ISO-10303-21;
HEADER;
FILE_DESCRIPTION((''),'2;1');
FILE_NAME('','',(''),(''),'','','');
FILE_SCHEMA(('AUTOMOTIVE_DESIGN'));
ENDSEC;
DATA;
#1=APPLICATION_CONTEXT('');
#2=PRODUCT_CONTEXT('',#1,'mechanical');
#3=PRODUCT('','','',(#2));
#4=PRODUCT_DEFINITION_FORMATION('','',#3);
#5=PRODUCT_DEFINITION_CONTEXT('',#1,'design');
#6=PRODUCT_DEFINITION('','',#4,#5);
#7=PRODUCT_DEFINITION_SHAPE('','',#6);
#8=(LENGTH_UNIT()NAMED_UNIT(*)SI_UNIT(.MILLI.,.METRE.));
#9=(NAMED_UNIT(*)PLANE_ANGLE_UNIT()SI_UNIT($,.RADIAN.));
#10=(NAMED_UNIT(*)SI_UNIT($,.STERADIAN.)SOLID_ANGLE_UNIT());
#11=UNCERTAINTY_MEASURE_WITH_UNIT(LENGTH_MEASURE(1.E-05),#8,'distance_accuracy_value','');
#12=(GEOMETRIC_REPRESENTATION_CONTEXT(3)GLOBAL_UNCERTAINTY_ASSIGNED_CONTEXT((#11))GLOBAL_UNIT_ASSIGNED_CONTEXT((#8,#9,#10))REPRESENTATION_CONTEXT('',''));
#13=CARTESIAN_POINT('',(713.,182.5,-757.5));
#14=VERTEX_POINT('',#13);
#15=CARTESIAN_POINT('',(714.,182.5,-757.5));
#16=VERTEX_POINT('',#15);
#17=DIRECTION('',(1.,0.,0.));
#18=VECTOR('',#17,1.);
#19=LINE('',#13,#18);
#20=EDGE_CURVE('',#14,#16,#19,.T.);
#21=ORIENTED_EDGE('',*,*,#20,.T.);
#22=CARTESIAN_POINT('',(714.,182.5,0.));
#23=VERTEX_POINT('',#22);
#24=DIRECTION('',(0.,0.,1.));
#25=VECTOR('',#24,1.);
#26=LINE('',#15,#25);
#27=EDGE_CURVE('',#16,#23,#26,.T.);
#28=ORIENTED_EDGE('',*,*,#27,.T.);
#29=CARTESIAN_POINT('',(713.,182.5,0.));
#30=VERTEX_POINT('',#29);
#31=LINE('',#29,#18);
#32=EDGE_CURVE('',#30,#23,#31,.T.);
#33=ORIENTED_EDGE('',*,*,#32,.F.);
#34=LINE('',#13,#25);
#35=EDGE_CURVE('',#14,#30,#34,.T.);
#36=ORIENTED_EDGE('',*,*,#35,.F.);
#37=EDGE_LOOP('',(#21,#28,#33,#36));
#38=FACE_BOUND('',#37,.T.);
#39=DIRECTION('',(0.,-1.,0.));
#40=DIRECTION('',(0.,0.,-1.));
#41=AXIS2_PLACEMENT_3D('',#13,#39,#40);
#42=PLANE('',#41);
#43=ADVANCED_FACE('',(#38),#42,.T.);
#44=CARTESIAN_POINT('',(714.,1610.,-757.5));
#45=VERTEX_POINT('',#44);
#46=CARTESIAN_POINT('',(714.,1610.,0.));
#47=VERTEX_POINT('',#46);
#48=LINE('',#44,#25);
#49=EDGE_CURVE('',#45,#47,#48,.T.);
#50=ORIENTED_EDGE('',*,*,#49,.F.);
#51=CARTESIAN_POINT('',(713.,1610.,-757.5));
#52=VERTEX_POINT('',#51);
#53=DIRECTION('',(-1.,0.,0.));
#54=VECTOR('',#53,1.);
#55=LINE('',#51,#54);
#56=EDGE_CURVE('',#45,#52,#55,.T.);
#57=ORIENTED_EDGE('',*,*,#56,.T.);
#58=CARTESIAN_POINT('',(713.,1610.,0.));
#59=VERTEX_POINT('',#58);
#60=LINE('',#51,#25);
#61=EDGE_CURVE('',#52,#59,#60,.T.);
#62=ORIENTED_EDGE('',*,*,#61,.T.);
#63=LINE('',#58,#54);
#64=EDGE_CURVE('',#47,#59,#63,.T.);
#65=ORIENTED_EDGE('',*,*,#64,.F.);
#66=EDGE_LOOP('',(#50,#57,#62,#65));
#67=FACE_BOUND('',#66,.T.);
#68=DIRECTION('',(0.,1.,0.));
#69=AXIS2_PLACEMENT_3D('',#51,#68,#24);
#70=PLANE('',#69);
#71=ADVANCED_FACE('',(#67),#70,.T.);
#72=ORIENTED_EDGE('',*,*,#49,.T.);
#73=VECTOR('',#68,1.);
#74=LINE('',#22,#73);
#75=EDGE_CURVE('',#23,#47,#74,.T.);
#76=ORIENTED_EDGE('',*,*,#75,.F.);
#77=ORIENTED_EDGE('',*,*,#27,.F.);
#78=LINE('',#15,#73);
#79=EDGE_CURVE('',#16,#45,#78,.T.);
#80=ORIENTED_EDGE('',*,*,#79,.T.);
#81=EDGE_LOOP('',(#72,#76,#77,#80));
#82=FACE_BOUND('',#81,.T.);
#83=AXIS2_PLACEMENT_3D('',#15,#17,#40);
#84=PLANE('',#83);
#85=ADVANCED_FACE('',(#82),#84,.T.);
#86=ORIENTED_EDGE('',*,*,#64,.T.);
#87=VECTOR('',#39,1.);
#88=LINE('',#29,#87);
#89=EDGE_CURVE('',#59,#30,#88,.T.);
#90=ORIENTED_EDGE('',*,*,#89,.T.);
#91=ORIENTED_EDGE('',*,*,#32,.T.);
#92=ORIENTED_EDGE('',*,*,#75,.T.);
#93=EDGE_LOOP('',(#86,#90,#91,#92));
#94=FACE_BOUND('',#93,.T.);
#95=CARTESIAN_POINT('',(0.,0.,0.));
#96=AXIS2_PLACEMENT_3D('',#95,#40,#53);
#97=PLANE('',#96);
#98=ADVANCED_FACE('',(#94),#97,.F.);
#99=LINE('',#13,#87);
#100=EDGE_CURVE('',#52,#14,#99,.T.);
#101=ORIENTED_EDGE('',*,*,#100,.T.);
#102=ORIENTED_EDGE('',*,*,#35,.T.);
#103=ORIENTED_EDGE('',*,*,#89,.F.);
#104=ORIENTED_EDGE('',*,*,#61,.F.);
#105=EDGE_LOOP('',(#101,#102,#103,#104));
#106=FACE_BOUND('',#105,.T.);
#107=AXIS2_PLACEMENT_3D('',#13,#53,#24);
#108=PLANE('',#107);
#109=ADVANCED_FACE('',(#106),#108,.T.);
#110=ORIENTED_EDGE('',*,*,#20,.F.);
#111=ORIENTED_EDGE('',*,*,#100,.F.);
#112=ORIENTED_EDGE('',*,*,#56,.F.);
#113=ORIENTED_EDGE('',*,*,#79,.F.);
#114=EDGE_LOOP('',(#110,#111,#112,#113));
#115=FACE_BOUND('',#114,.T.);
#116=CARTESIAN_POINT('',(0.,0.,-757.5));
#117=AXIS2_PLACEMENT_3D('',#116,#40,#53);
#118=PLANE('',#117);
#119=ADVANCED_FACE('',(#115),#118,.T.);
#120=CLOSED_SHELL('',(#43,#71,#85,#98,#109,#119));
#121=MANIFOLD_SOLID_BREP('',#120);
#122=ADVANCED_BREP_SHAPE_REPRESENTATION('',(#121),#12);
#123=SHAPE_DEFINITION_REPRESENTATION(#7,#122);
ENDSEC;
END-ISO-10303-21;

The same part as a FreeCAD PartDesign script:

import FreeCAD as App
import Part
import Sketcher
from FreeCAD import Vector


def add_polygon(sketch, points):
    """Adds a closed chain of lines whose ends are joined by coincident constraints."""
    first, n = sketch.GeometryCount, len(points)
    for a, b in zip(points, points[1:] + points[:1]):
        sketch.addGeometry(Part.LineSegment(App.Vector(*a, 0), App.Vector(*b, 0)), False)
    for i in range(n):
        sketch.addConstraint(Sketcher.Constraint("Coincident", first + i, 2, first + (i + 1) % n, 1))

doc = App.newDocument("Part")
body = doc.addObject("PartDesign::Body", "Body")

# Sketch on XY plane
sketch1 = doc.addObject("Sketcher::SketchObject", "Sketch")
body.addObject(sketch1)
sketch1.AttachmentSupport = (doc.XY_Plane, [""])
sketch1.MapMode = "FlatFace"
add_polygon(sketch1, [(713, 1610), (713, 182.5), (714, 182.5), (714, 1610)])  # lines 0-3
sketch1.addConstraint(Sketcher.Constraint("Vertical", 0))
sketch1.addConstraint(Sketcher.Constraint("Horizontal", 1))
sketch1.addConstraint(Sketcher.Constraint("Vertical", 2))
sketch1.addConstraint(Sketcher.Constraint("Horizontal", 3))
sketch1.addConstraint(Sketcher.Constraint("DistanceX", 1, 1, 1, 2, 1.0))
sketch1.addConstraint(Sketcher.Constraint("DistanceY", 0, 2, 0, 1, 1427.5))
sketch1.addConstraint(Sketcher.Constraint("DistanceX", -1, 1, 0, 2, 713.0))
sketch1.addConstraint(Sketcher.Constraint("DistanceY", -1, 1, 2, 2, 1610.0))
pad1 = doc.addObject("PartDesign::Pad", "Pad")
body.addObject(pad1)
pad1.Profile = sketch1
pad1.Length = 757.5
pad1.Reversed = True

doc.recompute()
